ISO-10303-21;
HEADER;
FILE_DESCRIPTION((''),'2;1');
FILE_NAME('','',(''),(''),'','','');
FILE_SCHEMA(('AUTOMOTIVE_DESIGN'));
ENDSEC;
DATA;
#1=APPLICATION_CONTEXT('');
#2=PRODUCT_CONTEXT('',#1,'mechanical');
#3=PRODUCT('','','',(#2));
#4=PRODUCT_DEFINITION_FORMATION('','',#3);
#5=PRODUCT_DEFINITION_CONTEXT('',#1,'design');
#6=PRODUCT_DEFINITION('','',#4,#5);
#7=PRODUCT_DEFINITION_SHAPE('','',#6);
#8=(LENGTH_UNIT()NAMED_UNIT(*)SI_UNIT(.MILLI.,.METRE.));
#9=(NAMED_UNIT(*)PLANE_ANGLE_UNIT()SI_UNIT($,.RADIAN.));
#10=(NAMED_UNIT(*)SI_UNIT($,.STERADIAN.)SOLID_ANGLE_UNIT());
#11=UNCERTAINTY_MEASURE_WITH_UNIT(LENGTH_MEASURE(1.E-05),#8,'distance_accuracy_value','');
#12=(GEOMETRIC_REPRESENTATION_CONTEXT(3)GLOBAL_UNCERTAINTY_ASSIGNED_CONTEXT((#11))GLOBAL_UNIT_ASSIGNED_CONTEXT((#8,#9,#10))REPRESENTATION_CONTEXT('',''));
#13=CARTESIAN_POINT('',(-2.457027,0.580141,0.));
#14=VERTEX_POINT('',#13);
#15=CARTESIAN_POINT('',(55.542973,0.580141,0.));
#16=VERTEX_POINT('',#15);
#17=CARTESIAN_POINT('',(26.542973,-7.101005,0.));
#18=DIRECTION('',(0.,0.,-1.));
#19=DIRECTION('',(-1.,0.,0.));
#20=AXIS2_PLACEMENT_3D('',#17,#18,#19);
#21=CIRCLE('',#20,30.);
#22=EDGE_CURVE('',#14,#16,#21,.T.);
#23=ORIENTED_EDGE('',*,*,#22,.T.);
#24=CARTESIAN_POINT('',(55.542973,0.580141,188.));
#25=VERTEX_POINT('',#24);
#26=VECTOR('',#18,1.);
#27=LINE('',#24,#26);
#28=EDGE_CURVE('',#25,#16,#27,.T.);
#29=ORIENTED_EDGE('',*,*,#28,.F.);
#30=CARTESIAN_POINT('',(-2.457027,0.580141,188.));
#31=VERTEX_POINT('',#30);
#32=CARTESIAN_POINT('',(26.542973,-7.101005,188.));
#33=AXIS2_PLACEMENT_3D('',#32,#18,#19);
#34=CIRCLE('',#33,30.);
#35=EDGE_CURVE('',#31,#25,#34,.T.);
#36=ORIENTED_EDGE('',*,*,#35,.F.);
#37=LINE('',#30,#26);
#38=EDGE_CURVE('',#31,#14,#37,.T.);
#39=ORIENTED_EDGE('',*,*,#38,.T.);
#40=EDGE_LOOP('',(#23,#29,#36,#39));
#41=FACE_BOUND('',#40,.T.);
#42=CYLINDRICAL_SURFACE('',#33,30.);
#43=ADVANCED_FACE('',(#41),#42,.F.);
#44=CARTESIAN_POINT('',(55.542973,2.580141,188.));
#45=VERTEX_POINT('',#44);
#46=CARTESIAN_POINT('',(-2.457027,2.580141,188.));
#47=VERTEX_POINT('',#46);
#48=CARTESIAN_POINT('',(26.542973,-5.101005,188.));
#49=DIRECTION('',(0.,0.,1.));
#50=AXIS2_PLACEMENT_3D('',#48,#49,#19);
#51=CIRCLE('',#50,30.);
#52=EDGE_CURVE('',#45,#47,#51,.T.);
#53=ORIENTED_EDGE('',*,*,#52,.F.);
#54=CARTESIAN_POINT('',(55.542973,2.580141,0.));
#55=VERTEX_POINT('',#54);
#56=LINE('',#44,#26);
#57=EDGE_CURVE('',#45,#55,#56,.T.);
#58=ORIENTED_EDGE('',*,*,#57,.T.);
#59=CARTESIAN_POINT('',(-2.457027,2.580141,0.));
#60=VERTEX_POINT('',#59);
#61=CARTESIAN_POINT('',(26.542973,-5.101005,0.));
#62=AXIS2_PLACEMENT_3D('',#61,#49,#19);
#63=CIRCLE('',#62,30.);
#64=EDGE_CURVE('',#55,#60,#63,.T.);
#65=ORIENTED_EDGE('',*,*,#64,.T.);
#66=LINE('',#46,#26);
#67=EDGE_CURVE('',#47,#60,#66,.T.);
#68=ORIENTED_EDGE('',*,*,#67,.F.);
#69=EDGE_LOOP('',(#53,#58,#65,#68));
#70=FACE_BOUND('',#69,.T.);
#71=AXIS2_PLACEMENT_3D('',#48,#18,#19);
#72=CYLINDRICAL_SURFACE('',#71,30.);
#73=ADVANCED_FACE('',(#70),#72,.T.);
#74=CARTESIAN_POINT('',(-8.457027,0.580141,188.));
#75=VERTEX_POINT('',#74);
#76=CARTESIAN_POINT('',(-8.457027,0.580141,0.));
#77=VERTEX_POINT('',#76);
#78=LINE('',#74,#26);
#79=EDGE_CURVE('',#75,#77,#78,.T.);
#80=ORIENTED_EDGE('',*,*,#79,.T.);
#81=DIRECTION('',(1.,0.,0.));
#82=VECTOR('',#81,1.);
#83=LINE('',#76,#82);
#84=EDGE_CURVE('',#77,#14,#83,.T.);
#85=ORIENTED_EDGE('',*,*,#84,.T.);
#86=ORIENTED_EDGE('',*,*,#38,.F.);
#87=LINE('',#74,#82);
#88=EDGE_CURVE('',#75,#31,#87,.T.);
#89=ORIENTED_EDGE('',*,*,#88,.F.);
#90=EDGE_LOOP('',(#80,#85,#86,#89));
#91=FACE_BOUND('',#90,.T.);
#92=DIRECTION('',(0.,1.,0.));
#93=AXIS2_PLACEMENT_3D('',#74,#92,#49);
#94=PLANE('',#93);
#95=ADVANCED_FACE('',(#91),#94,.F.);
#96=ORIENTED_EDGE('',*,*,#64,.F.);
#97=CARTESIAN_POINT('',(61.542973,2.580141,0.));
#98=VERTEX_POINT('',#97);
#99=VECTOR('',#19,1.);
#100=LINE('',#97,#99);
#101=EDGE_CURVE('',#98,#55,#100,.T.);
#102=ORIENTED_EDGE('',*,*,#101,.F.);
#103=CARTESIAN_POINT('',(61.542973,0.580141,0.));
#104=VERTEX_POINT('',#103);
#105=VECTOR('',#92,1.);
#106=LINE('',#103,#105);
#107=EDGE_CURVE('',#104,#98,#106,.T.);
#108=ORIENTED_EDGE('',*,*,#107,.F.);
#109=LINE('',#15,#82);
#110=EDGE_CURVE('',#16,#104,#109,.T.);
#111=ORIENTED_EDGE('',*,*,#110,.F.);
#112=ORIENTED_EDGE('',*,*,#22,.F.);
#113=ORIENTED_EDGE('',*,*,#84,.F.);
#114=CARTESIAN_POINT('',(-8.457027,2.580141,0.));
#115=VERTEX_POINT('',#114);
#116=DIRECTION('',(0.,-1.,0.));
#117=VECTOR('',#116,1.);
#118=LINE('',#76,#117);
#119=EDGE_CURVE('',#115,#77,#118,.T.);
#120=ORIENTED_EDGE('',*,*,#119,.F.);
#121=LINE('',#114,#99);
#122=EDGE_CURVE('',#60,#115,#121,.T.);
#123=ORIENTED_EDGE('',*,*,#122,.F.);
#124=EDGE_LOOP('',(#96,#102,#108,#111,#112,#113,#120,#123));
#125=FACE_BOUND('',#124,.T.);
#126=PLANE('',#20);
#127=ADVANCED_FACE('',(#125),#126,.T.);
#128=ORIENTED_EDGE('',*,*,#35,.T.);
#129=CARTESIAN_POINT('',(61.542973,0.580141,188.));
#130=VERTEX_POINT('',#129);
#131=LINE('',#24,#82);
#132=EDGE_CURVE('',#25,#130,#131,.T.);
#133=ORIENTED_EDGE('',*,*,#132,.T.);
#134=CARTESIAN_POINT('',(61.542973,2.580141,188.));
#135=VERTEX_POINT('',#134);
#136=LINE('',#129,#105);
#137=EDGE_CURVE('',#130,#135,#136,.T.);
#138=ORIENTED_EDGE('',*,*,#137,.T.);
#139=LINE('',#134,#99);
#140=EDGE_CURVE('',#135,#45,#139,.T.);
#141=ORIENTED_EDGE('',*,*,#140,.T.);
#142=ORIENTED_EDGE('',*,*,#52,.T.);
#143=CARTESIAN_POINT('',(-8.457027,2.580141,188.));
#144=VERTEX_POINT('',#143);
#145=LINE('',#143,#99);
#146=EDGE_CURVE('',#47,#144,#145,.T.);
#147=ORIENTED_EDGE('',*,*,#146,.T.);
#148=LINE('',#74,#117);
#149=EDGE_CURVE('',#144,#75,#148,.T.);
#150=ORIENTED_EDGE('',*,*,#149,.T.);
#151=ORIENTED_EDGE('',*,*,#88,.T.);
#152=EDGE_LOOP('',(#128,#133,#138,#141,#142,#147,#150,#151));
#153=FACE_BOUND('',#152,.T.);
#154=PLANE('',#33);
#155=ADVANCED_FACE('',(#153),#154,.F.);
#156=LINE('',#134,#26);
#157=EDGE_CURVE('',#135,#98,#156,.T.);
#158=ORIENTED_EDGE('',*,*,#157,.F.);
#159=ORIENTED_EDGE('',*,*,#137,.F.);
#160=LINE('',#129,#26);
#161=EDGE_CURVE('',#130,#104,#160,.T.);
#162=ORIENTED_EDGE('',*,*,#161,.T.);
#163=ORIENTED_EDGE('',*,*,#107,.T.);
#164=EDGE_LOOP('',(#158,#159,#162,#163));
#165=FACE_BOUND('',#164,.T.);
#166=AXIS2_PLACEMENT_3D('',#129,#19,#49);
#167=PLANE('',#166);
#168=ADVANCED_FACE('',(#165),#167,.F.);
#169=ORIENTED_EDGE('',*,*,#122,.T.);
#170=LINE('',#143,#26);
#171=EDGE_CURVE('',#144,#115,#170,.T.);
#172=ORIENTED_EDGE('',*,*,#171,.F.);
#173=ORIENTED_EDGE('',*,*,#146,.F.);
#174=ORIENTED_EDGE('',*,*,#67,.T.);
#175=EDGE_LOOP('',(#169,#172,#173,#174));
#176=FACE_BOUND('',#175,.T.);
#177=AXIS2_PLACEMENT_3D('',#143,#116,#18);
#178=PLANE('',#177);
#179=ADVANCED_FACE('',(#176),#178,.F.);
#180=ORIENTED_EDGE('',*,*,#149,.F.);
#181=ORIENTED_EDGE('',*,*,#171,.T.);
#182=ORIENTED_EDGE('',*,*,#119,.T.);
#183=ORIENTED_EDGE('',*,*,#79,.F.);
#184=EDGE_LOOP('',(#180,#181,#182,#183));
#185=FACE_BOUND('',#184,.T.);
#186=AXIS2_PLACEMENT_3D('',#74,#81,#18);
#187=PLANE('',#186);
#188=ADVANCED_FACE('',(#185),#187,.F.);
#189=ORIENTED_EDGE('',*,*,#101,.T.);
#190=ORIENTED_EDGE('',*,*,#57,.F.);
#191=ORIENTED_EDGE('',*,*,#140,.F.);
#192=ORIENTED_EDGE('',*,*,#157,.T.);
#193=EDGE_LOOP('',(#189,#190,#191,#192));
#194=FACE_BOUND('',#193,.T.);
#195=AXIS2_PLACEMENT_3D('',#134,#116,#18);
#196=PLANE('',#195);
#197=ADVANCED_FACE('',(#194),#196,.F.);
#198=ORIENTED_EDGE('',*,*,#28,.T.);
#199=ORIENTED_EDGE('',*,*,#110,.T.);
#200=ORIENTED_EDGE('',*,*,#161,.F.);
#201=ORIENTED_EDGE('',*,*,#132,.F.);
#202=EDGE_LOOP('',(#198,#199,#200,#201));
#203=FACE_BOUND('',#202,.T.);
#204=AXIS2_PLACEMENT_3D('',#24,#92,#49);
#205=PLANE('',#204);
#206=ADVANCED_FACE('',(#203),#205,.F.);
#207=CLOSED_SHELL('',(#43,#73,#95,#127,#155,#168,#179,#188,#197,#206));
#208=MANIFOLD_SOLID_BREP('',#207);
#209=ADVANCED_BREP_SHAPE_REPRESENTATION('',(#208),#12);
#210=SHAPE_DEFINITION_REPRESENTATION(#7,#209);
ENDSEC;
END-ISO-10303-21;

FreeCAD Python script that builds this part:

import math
import FreeCAD as App
import Part
import Sketcher
from FreeCAD import Vector

doc = App.newDocument("Part")
params = doc.addObject("Spreadsheet::Sheet", "Params")
for row, (alias, value) in enumerate([
    ("sketch1_radius", "30 mm"),
    ("sketch1_width", "6 mm"),
    ("sketch1_height", "2 mm"),
    ("pad1_length", "188 mm"),
], start=1):
    params.set(f"A{row}", alias)
    params.set(f"B{row}", "=" + value)
    params.setAlias(f"B{row}", alias)

body = doc.addObject("PartDesign::Body", "Body")

# Sketch on XY plane
sketch1 = body.newObject("Sketcher::SketchObject", "Sketch")
sketch1.AttachmentSupport = (doc.getObject("XY_Plane"), [""])
sketch1.MapMode = "FlatFace"
sketch1.addGeometry([
    Part.LineSegment(Vector(-8.5, 2.6, 0), Vector(-8.5, 0.6, 0)),  # 0
    Part.LineSegment(Vector(-8.5, 0.6, 0), Vector(-2.5, 0.6, 0)),  # 1
    Part.ArcOfCircle(Part.Circle(Vector(26.5, -7.1, 0), Vector(0, 0, 1), 30), math.radians(15), math.radians(165)),  # 2
    Part.LineSegment(Vector(55.5, 0.6, 0), Vector(61.5, 0.6, 0)),  # 3
    Part.LineSegment(Vector(61.5, 0.6, 0), Vector(61.5, 2.6, 0)),  # 4
    Part.LineSegment(Vector(61.5, 2.6, 0), Vector(55.5, 2.6, 0)),  # 5
    Part.ArcOfCircle(Part.Circle(Vector(26.5, -5.1, 0), Vector(0, 0, 1), 30), math.radians(15), math.radians(165)),  # 6
    Part.LineSegment(Vector(-2.5, 2.6, 0), Vector(-8.5, 2.6, 0)),  # 7
], False)
sketch1.addConstraint([
    Sketcher.Constraint("Coincident", 0, 2, 1, 1),
    Sketcher.Constraint("Coincident", 1, 2, 2, 2),
    Sketcher.Constraint("Coincident", 2, 1, 3, 1),
    Sketcher.Constraint("Coincident", 3, 2, 4, 1),
    Sketcher.Constraint("Coincident", 4, 2, 5, 1),
    Sketcher.Constraint("Coincident", 5, 2, 6, 1),
    Sketcher.Constraint("Coincident", 6, 2, 7, 1),
    Sketcher.Constraint("Coincident", 7, 2, 0, 1),
    Sketcher.Constraint("Vertical", 0),
    Sketcher.Constraint("Horizontal", 1),
    Sketcher.Constraint("Horizontal", 3),
    Sketcher.Constraint("Vertical", 4),
    Sketcher.Constraint("Horizontal", 5),
    Sketcher.Constraint("Horizontal", 7),
    Sketcher.Constraint("Equal", 2, 6),
    Sketcher.Constraint("Horizontal", 1, 2, 2, 1),
    Sketcher.Constraint("Horizontal", 5, 2, 6, 2),
    Sketcher.Constraint("Vertical", 2, 3, 6, 3),
    Sketcher.Constraint("Vertical", 2, 1, 5, 2),
    Sketcher.Constraint("Equal", 1, 3),
    Sketcher.Constraint("Radius", 2, 30.0),
    Sketcher.Constraint("DistanceX", 1, 1, 1, 2, 6.0),
    Sketcher.Constraint("DistanceY", 0, 2, 0, 1, 2.0),
    Sketcher.Constraint("DistanceX", 0, 2, 6, 3, 35.0),
    Sketcher.Constraint("DistanceY", -1, 1, 0, 2, 0.580141),
    Sketcher.Constraint("DistanceX", -1, 1, 2, 3, 26.542973),
])
sketch1.setExpression("Constraints[20]", "Params.sketch1_radius")
sketch1.setExpression("Constraints[21]", "Params.sketch1_width")
sketch1.setExpression("Constraints[22]", "Params.sketch1_height")
pad1 = body.newObject("PartDesign::Pad", "Pad")
pad1.Profile = sketch1
pad1.setExpression("Length", "Params.pad1_length")

doc.recompute()
